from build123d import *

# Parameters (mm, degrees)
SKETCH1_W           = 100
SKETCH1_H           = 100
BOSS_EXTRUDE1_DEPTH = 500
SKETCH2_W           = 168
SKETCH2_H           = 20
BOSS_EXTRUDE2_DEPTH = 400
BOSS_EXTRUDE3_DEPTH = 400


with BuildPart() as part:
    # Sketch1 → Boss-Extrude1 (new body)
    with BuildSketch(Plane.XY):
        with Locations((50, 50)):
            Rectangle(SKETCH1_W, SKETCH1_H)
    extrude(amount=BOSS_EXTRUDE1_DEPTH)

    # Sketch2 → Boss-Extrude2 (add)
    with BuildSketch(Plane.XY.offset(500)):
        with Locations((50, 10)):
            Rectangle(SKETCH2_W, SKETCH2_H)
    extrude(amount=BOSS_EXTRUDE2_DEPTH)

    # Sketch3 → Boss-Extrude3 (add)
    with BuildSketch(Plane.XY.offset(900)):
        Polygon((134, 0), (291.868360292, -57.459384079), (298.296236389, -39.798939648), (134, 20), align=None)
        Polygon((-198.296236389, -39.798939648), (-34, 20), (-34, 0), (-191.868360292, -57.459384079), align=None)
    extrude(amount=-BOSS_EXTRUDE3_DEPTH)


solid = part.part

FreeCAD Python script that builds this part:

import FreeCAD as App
import Part
import Sketcher

V = App.Vector
Q = App.Units.Quantity


def add_polygon(sketch, points):
    """Adds a closed chain of lines whose ends are joined by coincident constraints."""
    first, n = sketch.GeometryCount, len(points)
    for a, b in zip(points, points[1:] + points[:1]):
        sketch.addGeometry(Part.LineSegment(App.Vector(*a, 0), App.Vector(*b, 0)), False)
    for i in range(n):
        sketch.addConstraint(Sketcher.Constraint("Coincident", first + i, 2, first + (i + 1) % n, 1))

doc = App.newDocument("Part")
body = doc.addObject("PartDesign::Body", "Body")

# Sketch on XY plane
sketch1 = body.newObject("Sketcher::SketchObject", "Sketch")
sketch1.AttachmentSupport = (doc.getObject("XY_Plane"), [""])
sketch1.MapMode = "FlatFace"
add_polygon(sketch1, [(0, 100), (0, 0), (100, 0), (100, 100)])  # lines 0-3
sketch1.addConstraint(Sketcher.Constraint("Vertical", 0))
sketch1.addConstraint(Sketcher.Constraint("Horizontal", 1))
sketch1.addConstraint(Sketcher.Constraint("Vertical", 2))
sketch1.addConstraint(Sketcher.Constraint("Horizontal", 3))
sketch1.addConstraint(Sketcher.Constraint("Coincident", 0, 2, -1, 1))
sketch1.addConstraint(Sketcher.Constraint("Equal", 3, 0))
sketch1.addConstraint(Sketcher.Constraint("DistanceX", 1, 1, 1, 2, 100.0))
pad1 = body.newObject("PartDesign::Pad", "Pad")
pad1.Profile = sketch1
pad1.Length = 500

# Sketch on XY plane
sketch2 = body.newObject("Sketcher::SketchObject", "Sketch001")
sketch2.AttachmentSupport = (doc.getObject("XY_Plane"), [""])
sketch2.MapMode = "FlatFace"
sketch2.AttachmentOffset = App.Placement(V(0, 0, 500), App.Rotation())
add_polygon(sketch2, [(-34, 20), (-34, 0), (134, 0), (134, 20)])  # lines 0-3
sketch2.addConstraint(Sketcher.Constraint("Vertical", 0))
sketch2.addConstraint(Sketcher.Constraint("Horizontal", 1))
sketch2.addConstraint(Sketcher.Constraint("Vertical", 2))
sketch2.addConstraint(Sketcher.Constraint("Horizontal", 3))
sketch2.addConstraint(Sketcher.Constraint("PointOnObject", 0, 2, -1))
sketch2.addConstraint(Sketcher.Constraint("DistanceX", 1, 1, 1, 2, 168.0))
sketch2.addConstraint(Sketcher.Constraint("DistanceY", 0, 2, 0, 1, 20.0))
sketch2.addConstraint(Sketcher.Constraint("DistanceX", 0, 2, -1, 1, 34.0))
pad2 = body.newObject("PartDesign::Pad", "Pad001")
pad2.Profile = sketch2
pad2.Length = 400

# Sketch on XY plane
sketch3 = body.newObject("Sketcher::SketchObject", "Sketch002")
sketch3.AttachmentSupport = (doc.getObject("XY_Plane"), [""])
sketch3.MapMode = "FlatFace"
sketch3.AttachmentOffset = App.Placement(V(0, 0, 900), App.Rotation())
add_polygon(sketch3, [(134, 0), (292, -57), (298, -40), (134, 20)])  # lines 0-3
add_polygon(sketch3, [(-34, 20), (-198, -40), (-192, -57), (-34, 0)])  # lines 4-7
sketch3.addConstraint(Sketcher.Constraint("Vertical", 3))
sketch3.addConstraint(Sketcher.Constraint("Vertical", 7))
sketch3.addConstraint(Sketcher.Constraint("PointOnObject", 3, 2, -1))
sketch3.addConstraint(Sketcher.Constraint("PointOnObject", 6, 2, -1))
sketch3.addConstraint(Sketcher.Constraint("Perpendicular", 0, 1))
sketch3.addConstraint(Sketcher.Constraint("Perpendicular", 1, 2))
sketch3.addConstraint(Sketcher.Constraint("Perpendicular", 4, 5))
sketch3.addConstraint(Sketcher.Constraint("Perpendicular", 5, 6))
sketch3.addConstraint(Sketcher.Constraint("Horizontal", 1, 2, 4, 2))
sketch3.addConstraint(Sketcher.Constraint("Horizontal", 0, 2, 5, 2))
sketch3.addConstraint(Sketcher.Constraint("Horizontal", 2, 2, 7, 2))
sketch3.addConstraint(Sketcher.Constraint("DistanceY", 3, 2, 3, 1, 20.0))
sketch3.addConstraint(Sketcher.Constraint("Angle", 0, Q("-20 deg")))
sketch3.addConstraint(Sketcher.Constraint("Distance", 0, 168.0))
sketch3.addConstraint(Sketcher.Constraint("DistanceX", -1, 1, 2, 2, 134.0))
sketch3.addConstraint(Sketcher.Constraint("DistanceX", 6, 2, -1, 1, 34.0))
pad3 = body.newObject("PartDesign::Pad", "Pad002")
pad3.Profile = sketch3
pad3.Length = 400
pad3.Reversed = True

doc.recompute()
